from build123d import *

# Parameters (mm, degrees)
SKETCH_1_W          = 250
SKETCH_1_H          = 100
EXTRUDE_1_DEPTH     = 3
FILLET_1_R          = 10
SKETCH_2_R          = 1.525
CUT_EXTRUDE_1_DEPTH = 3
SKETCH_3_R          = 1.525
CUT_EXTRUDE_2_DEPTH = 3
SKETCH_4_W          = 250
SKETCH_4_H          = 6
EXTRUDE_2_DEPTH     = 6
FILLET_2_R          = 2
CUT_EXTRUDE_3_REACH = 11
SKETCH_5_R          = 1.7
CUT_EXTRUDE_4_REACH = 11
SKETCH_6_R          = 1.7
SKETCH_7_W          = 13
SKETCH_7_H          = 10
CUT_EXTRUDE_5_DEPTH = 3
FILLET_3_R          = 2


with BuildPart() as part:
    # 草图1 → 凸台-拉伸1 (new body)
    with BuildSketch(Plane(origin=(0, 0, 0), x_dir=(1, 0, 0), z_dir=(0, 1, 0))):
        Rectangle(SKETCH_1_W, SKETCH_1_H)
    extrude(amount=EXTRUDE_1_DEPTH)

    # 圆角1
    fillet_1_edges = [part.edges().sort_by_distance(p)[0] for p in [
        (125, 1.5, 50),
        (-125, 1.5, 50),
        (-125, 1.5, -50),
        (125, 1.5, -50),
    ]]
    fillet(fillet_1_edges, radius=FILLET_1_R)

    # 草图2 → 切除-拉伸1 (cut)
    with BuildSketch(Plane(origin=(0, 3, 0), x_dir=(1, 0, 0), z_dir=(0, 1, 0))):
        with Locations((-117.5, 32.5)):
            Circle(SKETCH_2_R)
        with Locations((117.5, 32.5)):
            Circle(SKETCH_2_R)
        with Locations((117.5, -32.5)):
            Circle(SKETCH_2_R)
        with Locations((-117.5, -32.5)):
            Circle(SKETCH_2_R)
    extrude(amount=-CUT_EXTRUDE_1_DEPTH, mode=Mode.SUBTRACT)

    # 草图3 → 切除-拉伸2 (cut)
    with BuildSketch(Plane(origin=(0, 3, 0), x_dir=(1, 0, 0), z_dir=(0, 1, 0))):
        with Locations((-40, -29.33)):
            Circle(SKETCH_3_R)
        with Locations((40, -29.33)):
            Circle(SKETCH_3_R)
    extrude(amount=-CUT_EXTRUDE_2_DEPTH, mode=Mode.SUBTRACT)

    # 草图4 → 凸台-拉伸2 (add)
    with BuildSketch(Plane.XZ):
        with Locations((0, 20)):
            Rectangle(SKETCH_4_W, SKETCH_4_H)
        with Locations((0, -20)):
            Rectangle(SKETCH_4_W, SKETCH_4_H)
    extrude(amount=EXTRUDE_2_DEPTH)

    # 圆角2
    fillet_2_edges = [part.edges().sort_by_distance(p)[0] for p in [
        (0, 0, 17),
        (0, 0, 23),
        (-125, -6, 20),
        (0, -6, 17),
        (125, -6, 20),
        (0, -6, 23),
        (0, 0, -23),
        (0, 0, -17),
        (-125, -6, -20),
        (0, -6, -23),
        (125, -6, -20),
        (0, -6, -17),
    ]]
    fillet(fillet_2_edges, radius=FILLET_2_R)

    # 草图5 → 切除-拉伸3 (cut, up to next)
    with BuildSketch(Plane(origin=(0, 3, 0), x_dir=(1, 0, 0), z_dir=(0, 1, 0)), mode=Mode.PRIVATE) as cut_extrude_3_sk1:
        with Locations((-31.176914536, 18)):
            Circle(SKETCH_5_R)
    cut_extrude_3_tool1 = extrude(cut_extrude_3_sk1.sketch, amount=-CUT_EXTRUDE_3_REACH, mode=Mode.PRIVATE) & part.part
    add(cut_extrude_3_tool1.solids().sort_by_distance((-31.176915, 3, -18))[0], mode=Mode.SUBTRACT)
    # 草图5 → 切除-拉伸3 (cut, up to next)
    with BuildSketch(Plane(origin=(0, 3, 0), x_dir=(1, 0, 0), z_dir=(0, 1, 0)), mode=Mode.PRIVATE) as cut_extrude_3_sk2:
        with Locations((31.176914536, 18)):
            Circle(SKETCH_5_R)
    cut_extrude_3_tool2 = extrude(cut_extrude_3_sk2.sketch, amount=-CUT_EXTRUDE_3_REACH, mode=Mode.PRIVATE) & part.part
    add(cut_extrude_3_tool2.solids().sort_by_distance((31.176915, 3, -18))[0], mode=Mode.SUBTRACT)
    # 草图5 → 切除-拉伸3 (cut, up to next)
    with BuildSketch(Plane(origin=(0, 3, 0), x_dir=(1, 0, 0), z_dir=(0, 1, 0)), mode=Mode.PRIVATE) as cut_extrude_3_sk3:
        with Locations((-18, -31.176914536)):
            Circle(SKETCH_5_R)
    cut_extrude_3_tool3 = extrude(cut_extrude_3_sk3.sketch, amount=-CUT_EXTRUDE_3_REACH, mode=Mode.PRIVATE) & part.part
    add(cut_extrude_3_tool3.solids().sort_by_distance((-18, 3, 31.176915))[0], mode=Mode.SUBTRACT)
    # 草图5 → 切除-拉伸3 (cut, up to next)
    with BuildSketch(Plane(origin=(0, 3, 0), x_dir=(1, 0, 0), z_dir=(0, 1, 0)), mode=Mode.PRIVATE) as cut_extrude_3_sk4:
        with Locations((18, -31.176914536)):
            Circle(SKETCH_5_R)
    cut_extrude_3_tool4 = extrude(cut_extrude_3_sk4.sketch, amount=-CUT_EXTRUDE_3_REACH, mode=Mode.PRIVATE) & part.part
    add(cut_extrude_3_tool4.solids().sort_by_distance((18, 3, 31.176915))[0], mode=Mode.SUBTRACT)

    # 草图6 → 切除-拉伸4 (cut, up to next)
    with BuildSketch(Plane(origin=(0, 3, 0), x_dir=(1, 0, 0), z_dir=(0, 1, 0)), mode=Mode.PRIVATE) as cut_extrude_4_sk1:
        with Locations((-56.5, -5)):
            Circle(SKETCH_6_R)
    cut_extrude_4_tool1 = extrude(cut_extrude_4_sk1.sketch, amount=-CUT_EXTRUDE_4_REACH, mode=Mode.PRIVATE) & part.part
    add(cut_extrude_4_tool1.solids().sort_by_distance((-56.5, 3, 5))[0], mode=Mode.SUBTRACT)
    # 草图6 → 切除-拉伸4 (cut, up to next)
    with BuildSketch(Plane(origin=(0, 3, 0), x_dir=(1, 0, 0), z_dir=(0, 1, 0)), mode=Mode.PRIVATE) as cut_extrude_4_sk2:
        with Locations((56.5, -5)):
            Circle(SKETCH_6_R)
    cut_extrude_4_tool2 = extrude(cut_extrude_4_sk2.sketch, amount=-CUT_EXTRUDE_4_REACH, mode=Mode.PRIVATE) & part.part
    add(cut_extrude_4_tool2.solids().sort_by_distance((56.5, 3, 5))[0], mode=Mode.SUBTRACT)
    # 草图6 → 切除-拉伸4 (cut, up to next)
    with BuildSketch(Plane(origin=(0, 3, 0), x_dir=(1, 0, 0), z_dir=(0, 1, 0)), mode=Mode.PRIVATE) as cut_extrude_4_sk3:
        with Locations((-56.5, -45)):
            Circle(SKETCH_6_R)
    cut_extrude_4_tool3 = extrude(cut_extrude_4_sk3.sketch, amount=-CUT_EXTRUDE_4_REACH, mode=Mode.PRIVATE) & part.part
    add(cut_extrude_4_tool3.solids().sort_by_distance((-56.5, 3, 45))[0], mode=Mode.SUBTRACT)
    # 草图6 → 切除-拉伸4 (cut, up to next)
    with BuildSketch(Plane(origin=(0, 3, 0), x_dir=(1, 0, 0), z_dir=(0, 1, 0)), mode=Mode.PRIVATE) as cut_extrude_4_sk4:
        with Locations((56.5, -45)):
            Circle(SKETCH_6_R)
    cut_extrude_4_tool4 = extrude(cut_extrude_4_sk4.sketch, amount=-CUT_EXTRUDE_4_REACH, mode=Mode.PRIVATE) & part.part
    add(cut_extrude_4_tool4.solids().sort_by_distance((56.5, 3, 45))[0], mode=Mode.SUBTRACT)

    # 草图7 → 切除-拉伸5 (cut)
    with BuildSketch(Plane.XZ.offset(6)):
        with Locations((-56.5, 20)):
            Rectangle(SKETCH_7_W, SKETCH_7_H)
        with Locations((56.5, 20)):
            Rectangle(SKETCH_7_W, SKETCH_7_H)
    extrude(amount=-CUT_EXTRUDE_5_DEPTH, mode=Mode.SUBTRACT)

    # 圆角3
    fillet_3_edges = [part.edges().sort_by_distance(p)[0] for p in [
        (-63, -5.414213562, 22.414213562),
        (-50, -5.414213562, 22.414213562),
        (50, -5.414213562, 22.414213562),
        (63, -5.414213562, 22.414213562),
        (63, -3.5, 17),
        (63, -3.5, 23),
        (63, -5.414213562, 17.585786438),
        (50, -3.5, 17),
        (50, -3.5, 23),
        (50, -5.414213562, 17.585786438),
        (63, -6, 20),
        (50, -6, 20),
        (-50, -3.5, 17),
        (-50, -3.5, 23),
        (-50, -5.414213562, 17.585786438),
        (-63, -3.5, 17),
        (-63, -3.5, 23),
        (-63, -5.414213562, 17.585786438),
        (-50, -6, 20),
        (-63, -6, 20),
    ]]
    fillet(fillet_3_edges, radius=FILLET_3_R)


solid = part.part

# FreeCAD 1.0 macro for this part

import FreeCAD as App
import Part
import Sketcher

V = App.Vector
Q = App.Units.Quantity


def edges_at(feature, points):
    """Names of the edges that pass closest to the given points."""
    edges = feature.Shape.Edges
    near = lambda p: min(range(len(edges)), key=lambda i: edges[i].distToShape(Part.Vertex(*p))[0])
    return sorted({f"Edge{near(p) + 1}" for p in points})

doc = App.newDocument("Part")
body = doc.addObject("PartDesign::Body", "Body")

# Sketch on XZ plane
sketch1 = body.newObject("Sketcher::SketchObject", "Sketch")
sketch1.AttachmentSupport = (doc.getObject("XZ_Plane"), [""])
sketch1.MapMode = "FlatFace"
sketch1.addGeometry([
    Part.LineSegment(V(-125, -50, 0), V(-125, 50, 0)),
    Part.LineSegment(V(-125, 50, 0), V(125, 50, 0)),
    Part.LineSegment(V(125, 50, 0), V(125, -50, 0)),
    Part.LineSegment(V(125, -50, 0), V(-125, -50, 0)),
], False)
sketch1.addConstraint([
    Sketcher.Constraint("Coincident", 0, 2, 1, 1),
    Sketcher.Constraint("Coincident", 1, 2, 2, 1),
    Sketcher.Constraint("Coincident", 2, 2, 3, 1),
    Sketcher.Constraint("Coincident", 3, 2, 0, 1),
    Sketcher.Constraint("Vertical", 0),
    Sketcher.Constraint("Horizontal", 1),
    Sketcher.Constraint("Vertical", 2),
    Sketcher.Constraint("Horizontal", 3),
    Sketcher.Constraint("Symmetric", 0, 2, 2, 2, -1, 1),
    Sketcher.Constraint("DistanceX", 1, 1, 1, 2, Q("250 mm")),
    Sketcher.Constraint("DistanceY", 0, 1, 0, 2, Q("100 mm")),
])
pad1 = body.newObject("PartDesign::Pad", "Pad")
pad1.Profile = sketch1
pad1.Length = 3
pad1.Reversed = True
doc.recompute()

fillet = body.newObject("PartDesign::Fillet", "Fillet")
fillet.Base = (pad1, edges_at(pad1, [
    (125, 1.5, 50),
    (-125, 1.5, 50),
    (-125, 1.5, -50),
    (125, 1.5, -50),
]))
fillet.Radius = 10

# Sketch on XZ plane
sketch2 = body.newObject("Sketcher::SketchObject", "Sketch001")
sketch2.AttachmentSupport = (doc.getObject("XZ_Plane"), [""])
sketch2.MapMode = "FlatFace"
sketch2.AttachmentOffset = App.Placement(V(0, 0, -3), App.Rotation())
sketch2.addGeometry([
    Part.Circle(V(-117.5, -32.5, 0), V(0, 0, 1), 1.5),
    Part.Circle(V(117.5, -32.5, 0), V(0, 0, 1), 1.5),
    Part.Circle(V(117.5, 32.5, 0), V(0, 0, 1), 1.5),
    Part.Circle(V(-117.5, 32.5, 0), V(0, 0, 1), 1.5),
], False)
sketch2.addConstraint([
    Sketcher.Constraint("Equal", 0, 1),
    Sketcher.Constraint("Equal", 1, 2),
    Sketcher.Constraint("Equal", 2, 3),
    Sketcher.Constraint("Symmetric", 0, 3, 2, 3, -1, 1),
    Sketcher.Constraint("Symmetric", 1, 3, 3, 3, -1, 1),
    Sketcher.Constraint("Symmetric", 0, 3, 1, 3, -2),
    Sketcher.Constraint("Diameter", 0, Q("3.05 mm")),
    Sketcher.Constraint("DistanceX", 0, 3, 1, 3, Q("235 mm")),
    Sketcher.Constraint("DistanceY", 1, 3, 2, 3, Q("65 mm")),
])
pocket1 = body.newObject("PartDesign::Pocket", "Pocket")
pocket1.Profile = sketch2
pocket1.Length = 3
pocket1.Reversed = True

# Sketch on XZ plane
sketch3 = body.newObject("Sketcher::SketchObject", "Sketch002")
sketch3.AttachmentSupport = (doc.getObject("XZ_Plane"), [""])
sketch3.MapMode = "FlatFace"
sketch3.AttachmentOffset = App.Placement(V(0, 0, -3), App.Rotation())
sketch3.addGeometry([
    Part.Circle(V(-40, 29.3, 0), V(0, 0, 1), 1.5),
    Part.Circle(V(40, 29.3, 0), V(0, 0, 1), 1.5),
], False)
sketch3.addConstraint([
    Sketcher.Constraint("Equal", 0, 1),
    Sketcher.Constraint("Symmetric", 0, 3, 1, 3, -2),
    Sketcher.Constraint("Diameter", 0, Q("3.05 mm")),
    Sketcher.Constraint("DistanceX", 0, 3, -1, 1, Q("40 mm")),
    Sketcher.Constraint("DistanceY", -1, 1, 0, 3, Q("29.33 mm")),
])
pocket2 = body.newObject("PartDesign::Pocket", "Pocket001")
pocket2.Profile = sketch3
pocket2.Length = 3
pocket2.Reversed = True

# Sketch on XZ plane
sketch4 = body.newObject("Sketcher::SketchObject", "Sketch003")
sketch4.AttachmentSupport = (doc.getObject("XZ_Plane"), [""])
sketch4.MapMode = "FlatFace"
sketch4.addGeometry([
    Part.LineSegment(V(-125, 23, 0), V(-125, 17, 0)),  # 0
    Part.LineSegment(V(-125, 17, 0), V(125, 17, 0)),  # 1
    Part.LineSegment(V(125, 17, 0), V(125, 23, 0)),  # 2
    Part.LineSegment(V(125, 23, 0), V(-125, 23, 0)),  # 3
    Part.LineSegment(V(-125, -17, 0), V(-125, -23, 0)),  # 4
    Part.LineSegment(V(-125, -23, 0), V(125, -23, 0)),  # 5
    Part.LineSegment(V(125, -23, 0), V(125, -17, 0)),  # 6
    Part.LineSegment(V(125, -17, 0), V(-125, -17, 0)),  # 7
], False)
sketch4.addConstraint([
    Sketcher.Constraint("Coincident", 0, 2, 1, 1),
    Sketcher.Constraint("Coincident", 1, 2, 2, 1),
    Sketcher.Constraint("Coincident", 2, 2, 3, 1),
    Sketcher.Constraint("Coincident", 3, 2, 0, 1),
    Sketcher.Constraint("Coincident", 4, 2, 5, 1),
    Sketcher.Constraint("Coincident", 5, 2, 6, 1),
    Sketcher.Constraint("Coincident", 6, 2, 7, 1),
    Sketcher.Constraint("Coincident", 7, 2, 4, 1),
    Sketcher.Constraint("Vertical", 0),
    Sketcher.Constraint("Horizontal", 1),
    Sketcher.Constraint("Vertical", 2),
    Sketcher.Constraint("Horizontal", 3),
    Sketcher.Constraint("Vertical", 4),
    Sketcher.Constraint("Horizontal", 5),
    Sketcher.Constraint("Vertical", 6),
    Sketcher.Constraint("Horizontal", 7),
    Sketcher.Constraint("Symmetric", 2, 2, 4, 2, -1, 1),
    Sketcher.Constraint("Symmetric", 0, 2, 6, 2, -1, 1),
    Sketcher.Constraint("Vertical", 3, 2, 4, 2),
    Sketcher.Constraint("DistanceX", 1, 1, 1, 2, Q("250 mm")),
    Sketcher.Constraint("DistanceY", 0, 2, 0, 1, Q("6 mm")),
    Sketcher.Constraint("DistanceY", -1, 1, 0, 2, Q("17 mm")),
])
pad2 = body.newObject("PartDesign::Pad", "Pad001")
pad2.Profile = sketch4
pad2.Length = 6
doc.recompute()

fillet2 = body.newObject("PartDesign::Fillet", "Fillet001")
fillet2.Base = (pad2, edges_at(pad2, [
    (0, 0, 17),
    (0, 0, 23),
    (-125, -6, 20),
    (0, -6, 17),
    (125, -6, 20),
    (0, -6, 23),
    (0, 0, -23),
    (0, 0, -17),
    (-125, -6, -20),
    (0, -6, -23),
    (125, -6, -20),
    (0, -6, -17),
]))
fillet2.Radius = 2

# Sketch on XZ plane
sketch5 = body.newObject("Sketcher::SketchObject", "Sketch004")
sketch5.AttachmentSupport = (doc.getObject("XZ_Plane"), [""])
sketch5.MapMode = "FlatFace"
sketch5.AttachmentOffset = App.Placement(V(0, 0, -3), App.Rotation())
sketch5.addGeometry(Part.Circle(V(-31.2, -18, 0), V(0, 0, 1), 1.7), False)
sketch5.addConstraint([
    Sketcher.Constraint("Diameter", 0, Q("3.4 mm")),
    Sketcher.Constraint("DistanceY", 0, 3, -1, 1, Q("18 mm")),
    Sketcher.Constraint("DistanceX", 0, 3, -1, 1, Q("31.176915 mm")),
])
pocket3 = body.newObject("PartDesign::Pocket", "Pocket002")
pocket3.Profile = sketch5
pocket3.Type = "UpToFirst"
pocket3.Reversed = True

# Sketch on XZ plane
sketch6 = body.newObject("Sketcher::SketchObject", "Sketch005")
sketch6.AttachmentSupport = (doc.getObject("XZ_Plane"), [""])
sketch6.MapMode = "FlatFace"
sketch6.AttachmentOffset = App.Placement(V(0, 0, -3), App.Rotation())
sketch6.addGeometry(Part.Circle(V(31.2, -18, 0), V(0, 0, 1), 1.7), False)
sketch6.addConstraint([
    Sketcher.Constraint("Diameter", 0, Q("3.4 mm")),
    Sketcher.Constraint("DistanceY", 0, 3, -1, 1, Q("18 mm")),
    Sketcher.Constraint("DistanceX", -1, 1, 0, 3, Q("31.176915 mm")),
])
pocket4 = body.newObject("PartDesign::Pocket", "Pocket003")
pocket4.Profile = sketch6
pocket4.Type = "UpToFirst"
pocket4.Reversed = True

# Sketch on XZ plane
sketch7 = body.newObject("Sketcher::SketchObject", "Sketch006")
sketch7.AttachmentSupport = (doc.getObject("XZ_Plane"), [""])
sketch7.MapMode = "FlatFace"
sketch7.AttachmentOffset = App.Placement(V(0, 0, -3), App.Rotation())
sketch7.addGeometry(Part.Circle(V(-18, 31.2, 0), V(0, 0, 1), 1.7), False)
sketch7.addConstraint([
    Sketcher.Constraint("Diameter", 0, Q("3.4 mm")),
    Sketcher.Constraint("DistanceX", 0, 3, -1, 1, Q("18 mm")),
    Sketcher.Constraint("DistanceY", -1, 1, 0, 3, Q("31.176915 mm")),
])
pocket5 = body.newObject("PartDesign::Pocket", "Pocket004")
pocket5.Profile = sketch7
pocket5.Type = "UpToFirst"
pocket5.Reversed = True

# Sketch on XZ plane
sketch8 = body.newObject("Sketcher::SketchObject", "Sketch007")
sketch8.AttachmentSupport = (doc.getObject("XZ_Plane"), [""])
sketch8.MapMode = "FlatFace"
sketch8.AttachmentOffset = App.Placement(V(0, 0, -3), App.Rotation())
sketch8.addGeometry(Part.Circle(V(18, 31.2, 0), V(0, 0, 1), 1.7), False)
sketch8.addConstraint([
    Sketcher.Constraint("Diameter", 0, Q("3.4 mm")),
    Sketcher.Constraint("DistanceX", -1, 1, 0, 3, Q("18 mm")),
    Sketcher.Constraint("DistanceY", -1, 1, 0, 3, Q("31.176915 mm")),
])
pocket6 = body.newObject("PartDesign::Pocket", "Pocket005")
pocket6.Profile = sketch8
pocket6.Type = "UpToFirst"
pocket6.Reversed = True

# Sketch on XZ plane
sketch9 = body.newObject("Sketcher::SketchObject", "Sketch008")
sketch9.AttachmentSupport = (doc.getObject("XZ_Plane"), [""])
sketch9.MapMode = "FlatFace"
sketch9.AttachmentOffset = App.Placement(V(0, 0, -3), App.Rotation())
sketch9.addGeometry(Part.Circle(V(-56.5, 5, 0), V(0, 0, 1), 1.7), False)
sketch9.addConstraint([
    Sketcher.Constraint("Diameter", 0, Q("3.4 mm")),
    Sketcher.Constraint("DistanceY", -1, 1, 0, 3, Q("5 mm")),
    Sketcher.Constraint("DistanceX", 0, 3, -1, 1, Q("56.5 mm")),
])
pocket7 = body.newObject("PartDesign::Pocket", "Pocket006")
pocket7.Profile = sketch9
pocket7.Type = "UpToFirst"
pocket7.Reversed = True

# Sketch on XZ plane
sketch10 = body.newObject("Sketcher::SketchObject", "Sketch009")
sketch10.AttachmentSupport = (doc.getObject("XZ_Plane"), [""])
sketch10.MapMode = "FlatFace"
sketch10.AttachmentOffset = App.Placement(V(0, 0, -3), App.Rotation())
sketch10.addGeometry(Part.Circle(V(56.5, 5, 0), V(0, 0, 1), 1.7), False)
sketch10.addConstraint([
    Sketcher.Constraint("Diameter", 0, Q("3.4 mm")),
    Sketcher.Constraint("DistanceY", -1, 1, 0, 3, Q("5 mm")),
    Sketcher.Constraint("DistanceX", -1, 1, 0, 3, Q("56.5 mm")),
])
pocket8 = body.newObject("PartDesign::Pocket", "Pocket007")
pocket8.Profile = sketch10
pocket8.Type = "UpToFirst"
pocket8.Reversed = True

# Sketch on XZ plane
sketch11 = body.newObject("Sketcher::SketchObject", "Sketch010")
sketch11.AttachmentSupport = (doc.getObject("XZ_Plane"), [""])
sketch11.MapMode = "FlatFace"
sketch11.AttachmentOffset = App.Placement(V(0, 0, -3), App.Rotation())
sketch11.addGeometry(Part.Circle(V(-56.5, 45, 0), V(0, 0, 1), 1.7), False)
sketch11.addConstraint([
    Sketcher.Constraint("Diameter", 0, Q("3.4 mm")),
    Sketcher.Constraint("DistanceY", -1, 1, 0, 3, Q("45 mm")),
    Sketcher.Constraint("DistanceX", 0, 3, -1, 1, Q("56.5 mm")),
])
pocket9 = body.newObject("PartDesign::Pocket", "Pocket008")
pocket9.Profile = sketch11
pocket9.Type = "UpToFirst"
pocket9.Reversed = True

# Sketch on XZ plane
sketch12 = body.newObject("Sketcher::SketchObject", "Sketch011")
sketch12.AttachmentSupport = (doc.getObject("XZ_Plane"), [""])
sketch12.MapMode = "FlatFace"
sketch12.AttachmentOffset = App.Placement(V(0, 0, -3), App.Rotation())
sketch12.addGeometry(Part.Circle(V(56.5, 45, 0), V(0, 0, 1), 1.7), False)
sketch12.addConstraint([
    Sketcher.Constraint("Diameter", 0, Q("3.4 mm")),
    Sketcher.Constraint("DistanceY", -1, 1, 0, 3, Q("45 mm")),
    Sketcher.Constraint("DistanceX", -1, 1, 0, 3, Q("56.5 mm")),
])
pocket10 = body.newObject("PartDesign::Pocket", "Pocket009")
pocket10.Profile = sketch12
pocket10.Type = "UpToFirst"
pocket10.Reversed = True

# Sketch on XZ plane
sketch13 = body.newObject("Sketcher::SketchObject", "Sketch012")
sketch13.AttachmentSupport = (doc.getObject("XZ_Plane"), [""])
sketch13.MapMode = "FlatFace"
sketch13.AttachmentOffset = App.Placement(V(0, 0, 6), App.Rotation())
sketch13.addGeometry([
    Part.LineSegment(V(-63, 25, 0), V(-63, 15, 0)),  # 0
    Part.LineSegment(V(-63, 15, 0), V(-50, 15, 0)),  # 1
    Part.LineSegment(V(-50, 15, 0), V(-50, 25, 0)),  # 2
    Part.LineSegment(V(-50, 25, 0), V(-63, 25, 0)),  # 3
    Part.LineSegment(V(50, 25, 0), V(50, 15, 0)),  # 4
    Part.LineSegment(V(50, 15, 0), V(63, 15, 0)),  # 5
    Part.LineSegment(V(63, 15, 0), V(63, 25, 0)),  # 6
    Part.LineSegment(V(63, 25, 0), V(50, 25, 0)),  # 7
], False)
sketch13.addConstraint([
    Sketcher.Constraint("Coincident", 0, 2, 1, 1),
    Sketcher.Constraint("Coincident", 1, 2, 2, 1),
    Sketcher.Constraint("Coincident", 2, 2, 3, 1),
    Sketcher.Constraint("Coincident", 3, 2, 0, 1),
    Sketcher.Constraint("Coincident", 4, 2, 5, 1),
    Sketcher.Constraint("Coincident", 5, 2, 6, 1),
    Sketcher.Constraint("Coincident", 6, 2, 7, 1),
    Sketcher.Constraint("Coincident", 7, 2, 4, 1),
    Sketcher.Constraint("Vertical", 0),
    Sketcher.Constraint("Horizontal", 1),
    Sketcher.Constraint("Vertical", 2),
    Sketcher.Constraint("Horizontal", 3),
    Sketcher.Constraint("Vertical", 4),
    Sketcher.Constraint("Horizontal", 5),
    Sketcher.Constraint("Vertical", 6),
    Sketcher.Constraint("Horizontal", 7),
    Sketcher.Constraint("Symmetric", 1, 2, 4, 2, -2),
    Sketcher.Constraint("Symmetric", 3, 2, 6, 2, -2),
    Sketcher.Constraint("DistanceX", 1, 1, 1, 2, Q("13 mm")),
    Sketcher.Constraint("DistanceY", 0, 2, 0, 1, Q("10 mm")),
    Sketcher.Constraint("DistanceX", 0, 2, -1, 1, Q("63 mm")),
    Sketcher.Constraint("DistanceY", -1, 1, 0, 2, Q("15 mm")),
])
pocket11 = body.newObject("PartDesign::Pocket", "Pocket010")
pocket11.Profile = sketch13
pocket11.Length = 3
doc.recompute()

fillet3 = body.newObject("PartDesign::Fillet", "Fillet002")
fillet3.Base = (pocket11, edges_at(pocket11, [
    (-63, -5.414, 22.414),
    (-50, -5.414, 22.414),
    (50, -5.414, 22.414),
    (63, -5.414, 22.414),
    (63, -3.5, 17),
    (63, -3.5, 23),
    (63, -5.414, 17.586),
    (50, -3.5, 17),
    (50, -3.5, 23),
    (50, -5.414, 17.586),
    (63, -6, 20),
    (50, -6, 20),
    (-50, -3.5, 17),
    (-50, -3.5, 23),
    (-50, -5.414, 17.586),
    (-63, -3.5, 17),
    (-63, -3.5, 23),
    (-63, -5.414, 17.586),
    (-50, -6, 20),
    (-63, -6, 20),
]))
fillet3.Radius = 2

doc.recompute()
